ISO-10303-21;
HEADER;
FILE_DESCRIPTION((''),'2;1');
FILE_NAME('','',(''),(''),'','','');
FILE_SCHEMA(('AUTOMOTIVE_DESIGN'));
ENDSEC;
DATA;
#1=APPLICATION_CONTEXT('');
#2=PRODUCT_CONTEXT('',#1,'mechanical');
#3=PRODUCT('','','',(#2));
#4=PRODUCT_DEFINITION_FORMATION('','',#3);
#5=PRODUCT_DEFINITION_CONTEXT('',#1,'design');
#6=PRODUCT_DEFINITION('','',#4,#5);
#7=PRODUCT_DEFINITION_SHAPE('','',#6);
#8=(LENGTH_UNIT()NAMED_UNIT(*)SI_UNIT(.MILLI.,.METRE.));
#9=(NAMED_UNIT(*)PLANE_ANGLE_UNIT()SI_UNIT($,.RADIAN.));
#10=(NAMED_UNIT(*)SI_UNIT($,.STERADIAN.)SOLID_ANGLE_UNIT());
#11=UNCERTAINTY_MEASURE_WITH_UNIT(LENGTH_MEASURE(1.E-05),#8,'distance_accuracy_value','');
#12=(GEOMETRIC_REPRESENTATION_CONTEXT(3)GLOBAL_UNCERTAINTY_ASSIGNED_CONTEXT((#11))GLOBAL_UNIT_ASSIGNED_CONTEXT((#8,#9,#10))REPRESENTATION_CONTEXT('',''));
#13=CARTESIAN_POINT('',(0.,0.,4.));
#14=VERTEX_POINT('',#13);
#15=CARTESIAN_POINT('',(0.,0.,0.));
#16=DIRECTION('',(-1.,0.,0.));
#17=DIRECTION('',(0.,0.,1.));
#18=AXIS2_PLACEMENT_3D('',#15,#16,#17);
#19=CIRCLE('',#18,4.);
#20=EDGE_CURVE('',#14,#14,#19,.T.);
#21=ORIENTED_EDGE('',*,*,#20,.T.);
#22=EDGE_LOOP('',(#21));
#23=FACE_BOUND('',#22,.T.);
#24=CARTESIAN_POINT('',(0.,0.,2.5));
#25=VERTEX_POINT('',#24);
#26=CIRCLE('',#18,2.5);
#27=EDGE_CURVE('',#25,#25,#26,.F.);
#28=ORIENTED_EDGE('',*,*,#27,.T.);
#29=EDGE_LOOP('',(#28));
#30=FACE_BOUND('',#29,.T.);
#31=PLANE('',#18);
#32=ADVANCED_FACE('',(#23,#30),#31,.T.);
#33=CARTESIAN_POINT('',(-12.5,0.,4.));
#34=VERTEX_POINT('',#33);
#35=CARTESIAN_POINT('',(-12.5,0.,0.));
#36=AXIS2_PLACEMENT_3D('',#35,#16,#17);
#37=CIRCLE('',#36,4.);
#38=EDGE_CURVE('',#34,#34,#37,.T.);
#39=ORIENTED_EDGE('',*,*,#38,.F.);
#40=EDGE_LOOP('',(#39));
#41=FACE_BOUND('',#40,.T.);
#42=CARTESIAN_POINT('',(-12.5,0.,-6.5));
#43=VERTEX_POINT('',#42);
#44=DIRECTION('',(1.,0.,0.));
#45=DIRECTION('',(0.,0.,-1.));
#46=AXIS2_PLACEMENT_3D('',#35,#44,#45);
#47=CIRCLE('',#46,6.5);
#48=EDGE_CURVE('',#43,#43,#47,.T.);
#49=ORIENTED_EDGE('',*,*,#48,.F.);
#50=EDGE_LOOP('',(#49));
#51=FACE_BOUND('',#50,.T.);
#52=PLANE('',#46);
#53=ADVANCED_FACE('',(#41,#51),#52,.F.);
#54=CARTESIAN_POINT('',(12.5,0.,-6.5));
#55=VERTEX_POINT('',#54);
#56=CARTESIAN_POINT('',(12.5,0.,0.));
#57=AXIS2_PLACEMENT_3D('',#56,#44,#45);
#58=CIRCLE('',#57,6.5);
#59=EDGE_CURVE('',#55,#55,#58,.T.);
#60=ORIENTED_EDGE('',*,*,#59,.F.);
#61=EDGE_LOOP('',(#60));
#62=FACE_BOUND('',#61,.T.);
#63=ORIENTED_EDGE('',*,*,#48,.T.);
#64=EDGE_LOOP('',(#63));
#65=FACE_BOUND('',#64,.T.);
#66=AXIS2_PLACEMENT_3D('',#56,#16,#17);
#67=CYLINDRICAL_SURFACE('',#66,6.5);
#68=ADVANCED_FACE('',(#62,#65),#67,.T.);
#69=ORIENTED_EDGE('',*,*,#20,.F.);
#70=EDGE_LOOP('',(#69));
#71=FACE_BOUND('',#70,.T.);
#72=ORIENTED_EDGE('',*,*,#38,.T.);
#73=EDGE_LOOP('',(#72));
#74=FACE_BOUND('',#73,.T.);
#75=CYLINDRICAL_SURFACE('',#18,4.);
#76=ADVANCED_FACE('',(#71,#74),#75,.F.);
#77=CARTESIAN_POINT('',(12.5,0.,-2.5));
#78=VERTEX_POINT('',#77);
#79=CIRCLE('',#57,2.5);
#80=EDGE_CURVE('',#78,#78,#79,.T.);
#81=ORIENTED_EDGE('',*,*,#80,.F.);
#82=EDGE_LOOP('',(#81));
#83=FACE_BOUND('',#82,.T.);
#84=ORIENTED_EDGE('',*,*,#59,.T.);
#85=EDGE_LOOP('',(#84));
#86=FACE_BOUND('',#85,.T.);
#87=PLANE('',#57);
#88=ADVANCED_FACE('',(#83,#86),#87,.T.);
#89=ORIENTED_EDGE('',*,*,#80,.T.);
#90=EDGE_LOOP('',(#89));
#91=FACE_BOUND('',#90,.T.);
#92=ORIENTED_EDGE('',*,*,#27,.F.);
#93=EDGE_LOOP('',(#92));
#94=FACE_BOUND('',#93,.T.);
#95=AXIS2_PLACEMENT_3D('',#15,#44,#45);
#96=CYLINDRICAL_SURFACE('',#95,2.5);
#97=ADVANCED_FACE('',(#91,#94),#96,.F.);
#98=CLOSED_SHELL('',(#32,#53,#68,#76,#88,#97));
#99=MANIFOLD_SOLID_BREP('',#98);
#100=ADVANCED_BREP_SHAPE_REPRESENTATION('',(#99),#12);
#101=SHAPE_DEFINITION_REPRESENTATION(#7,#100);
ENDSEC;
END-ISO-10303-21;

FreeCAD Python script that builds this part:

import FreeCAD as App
import Part
import Sketcher
from FreeCAD import Vector
Q = App.Units.Quantity

doc = App.newDocument("Part")
body = doc.addObject("PartDesign::Body", "Body")

# Sketch on YZ plane
sketch1 = body.newObject("Sketcher::SketchObject", "Sketch")
sketch1.AttachmentSupport = (doc.getObject("YZ_Plane"), [""])
sketch1.MapMode = "FlatFace"
sketch1.addGeometry(Part.Circle(Vector(0, 0, 0), Vector(0, 0, 1), 6), False)
sketch1.addConstraint([
    Sketcher.Constraint("Coincident", 0, 3, -1, 1),
    Sketcher.Constraint("Diameter", 0, Q("13 mm")),
])
pad1 = body.newObject("PartDesign::Pad", "Pad")
pad1.Profile = sketch1
pad1.Length = 25
pad1.Midplane = True

# Sketch on YZ plane
sketch2 = body.newObject("Sketcher::SketchObject", "Sketch001")
sketch2.AttachmentSupport = (doc.getObject("YZ_Plane"), [""])
sketch2.MapMode = "FlatFace"
sketch2.AttachmentOffset = App.Placement(Vector(0, 0, 12.5), App.Rotation())
sketch2.addGeometry(Part.Circle(Vector(0, 0, 0), Vector(0, 0, 1), 2.5), False)
sketch2.addConstraint([
    Sketcher.Constraint("Coincident", 0, 3, -1, 1),
    Sketcher.Constraint("Diameter", 0, Q("5 mm")),
])
pocket1 = body.newObject("PartDesign::Pocket", "Pocket")
pocket1.Profile = sketch2
pocket1.Length = 12.5

# Sketch on YZ plane
sketch3 = body.newObject("Sketcher::SketchObject", "Sketch002")
sketch3.AttachmentSupport = (doc.getObject("YZ_Plane"), [""])
sketch3.MapMode = "FlatFace"
sketch3.AttachmentOffset = App.Placement(Vector(0, 0, -12.5), App.Rotation())
sketch3.addGeometry(Part.Circle(Vector(0, 0, 0), Vector(0, 0, 1), 4), False)
sketch3.addConstraint([
    Sketcher.Constraint("Coincident", 0, 3, -1, 1),
    Sketcher.Constraint("Diameter", 0, Q("8 mm")),
])
pocket2 = body.newObject("PartDesign::Pocket", "Pocket001")
pocket2.Profile = sketch3
pocket2.Length = 12.5
pocket2.Reversed = True

doc.recompute()
